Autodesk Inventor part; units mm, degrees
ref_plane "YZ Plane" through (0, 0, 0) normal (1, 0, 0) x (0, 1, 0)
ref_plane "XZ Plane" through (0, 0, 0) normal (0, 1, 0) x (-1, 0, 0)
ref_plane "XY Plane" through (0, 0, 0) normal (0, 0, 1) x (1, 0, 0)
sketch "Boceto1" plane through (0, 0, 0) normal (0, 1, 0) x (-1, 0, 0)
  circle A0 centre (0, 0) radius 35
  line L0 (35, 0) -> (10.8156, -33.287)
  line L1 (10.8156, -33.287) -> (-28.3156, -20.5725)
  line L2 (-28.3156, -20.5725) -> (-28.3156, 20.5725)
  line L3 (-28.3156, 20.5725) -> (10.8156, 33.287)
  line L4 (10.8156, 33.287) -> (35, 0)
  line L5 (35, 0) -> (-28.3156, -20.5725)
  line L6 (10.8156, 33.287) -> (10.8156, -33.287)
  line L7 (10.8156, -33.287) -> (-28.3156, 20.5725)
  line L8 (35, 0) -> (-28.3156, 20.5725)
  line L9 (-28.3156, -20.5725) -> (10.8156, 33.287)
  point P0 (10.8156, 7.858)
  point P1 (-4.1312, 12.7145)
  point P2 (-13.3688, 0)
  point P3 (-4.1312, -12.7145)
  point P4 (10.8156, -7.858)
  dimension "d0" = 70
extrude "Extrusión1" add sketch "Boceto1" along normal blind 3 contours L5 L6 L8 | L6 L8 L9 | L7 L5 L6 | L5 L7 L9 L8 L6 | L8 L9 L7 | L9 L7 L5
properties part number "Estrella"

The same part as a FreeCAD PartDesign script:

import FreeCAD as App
import Part
import Sketcher
Q = App.Units.Quantity

doc = App.newDocument("Part")
body = doc.addObject("PartDesign::Body", "Body")

sketch1 = body.newObject("Sketcher::SketchObject", "Sketch")
sketch1.AttachmentSupport = (doc.getObject("XZ_Plane"), [""])
sketch1.MapMode = "FlatFace"
sketch1.addGeometry(Part.LineSegment(App.Vector(-11, -8, 0), App.Vector(-35, 0, 0)), False)
sketch1.addGeometry(Part.LineSegment(App.Vector(-35, 0, 0), App.Vector(-11, 8, 0)), False)
sketch1.addGeometry(Part.LineSegment(App.Vector(-11, 8, 0), App.Vector(-11, 33, 0)), False)
sketch1.addGeometry(Part.LineSegment(App.Vector(-11, 33, 0), App.Vector(4, 13, 0)), False)
sketch1.addGeometry(Part.LineSegment(App.Vector(4, 13, 0), App.Vector(28, 21, 0)), False)
sketch1.addGeometry(Part.LineSegment(App.Vector(28, 21, 0), App.Vector(13, 0, 0)), False)
sketch1.addGeometry(Part.LineSegment(App.Vector(13, 0, 0), App.Vector(28, -21, 0)), False)
sketch1.addGeometry(Part.LineSegment(App.Vector(28, -21, 0), App.Vector(4, -13, 0)), False)
sketch1.addGeometry(Part.LineSegment(App.Vector(4, -13, 0), App.Vector(-11, -33, 0)), False)
sketch1.addGeometry(Part.LineSegment(App.Vector(-11, -33, 0), App.Vector(-11, -8, 0)), False)
sketch1.addConstraint(Sketcher.Constraint("Coincident", 0, 2, 1, 1))
sketch1.addConstraint(Sketcher.Constraint("Coincident", 1, 2, 2, 1))
sketch1.addConstraint(Sketcher.Constraint("Coincident", 2, 2, 3, 1))
sketch1.addConstraint(Sketcher.Constraint("Coincident", 3, 2, 4, 1))
sketch1.addConstraint(Sketcher.Constraint("Coincident", 4, 2, 5, 1))
sketch1.addConstraint(Sketcher.Constraint("Coincident", 5, 2, 6, 1))
sketch1.addConstraint(Sketcher.Constraint("Coincident", 6, 2, 7, 1))
sketch1.addConstraint(Sketcher.Constraint("Coincident", 7, 2, 8, 1))
sketch1.addConstraint(Sketcher.Constraint("Coincident", 8, 2, 9, 1))
sketch1.addConstraint(Sketcher.Constraint("Coincident", 9, 2, 0, 1))
sketch1.addConstraint(Sketcher.Constraint("Vertical", 2))
sketch1.addConstraint(Sketcher.Constraint("Vertical", 9))
sketch1.addConstraint(Sketcher.Constraint("Symmetric", 4, 2, 6, 2, -1))
sketch1.addConstraint(Sketcher.Constraint("Symmetric", 3, 2, 7, 2, -1))
sketch1.addConstraint(Sketcher.Constraint("Symmetric", 2, 2, 8, 2, -1))
sketch1.addConstraint(Sketcher.Constraint("PointOnObject", 0, 2, -1))
sketch1.addConstraint(Sketcher.Constraint("PointOnObject", 5, 2, -1))
sketch1.addConstraint(Sketcher.Constraint("Parallel", 1, 4))
sketch1.addConstraint(Sketcher.Constraint("Parallel", 3, 6))
sketch1.addConstraint(Sketcher.Constraint("Parallel", 0, 7))
sketch1.addConstraint(Sketcher.Constraint("Equal", 1, 3))
sketch1.addConstraint(Sketcher.Constraint("Equal", 3, 4))
sketch1.addConstraint(Sketcher.Constraint("Equal", 4, 5))
sketch1.addConstraint(Sketcher.Constraint("Angle", 0, Q("162 deg")))
sketch1.addConstraint(Sketcher.Constraint("Angle", 3, Q("-54 deg")))
sketch1.addConstraint(Sketcher.Constraint("DistanceX", 0, 2, -1, 1, Q("35 mm")))
sketch1.addConstraint(Sketcher.Constraint("DistanceY", 2, 1, 2, 2, Q("25.429 mm")))
pad1 = body.newObject("PartDesign::Pad", "Pad")
pad1.Profile = sketch1
pad1.Length = 3
pad1.Reversed = True

doc.recompute()
